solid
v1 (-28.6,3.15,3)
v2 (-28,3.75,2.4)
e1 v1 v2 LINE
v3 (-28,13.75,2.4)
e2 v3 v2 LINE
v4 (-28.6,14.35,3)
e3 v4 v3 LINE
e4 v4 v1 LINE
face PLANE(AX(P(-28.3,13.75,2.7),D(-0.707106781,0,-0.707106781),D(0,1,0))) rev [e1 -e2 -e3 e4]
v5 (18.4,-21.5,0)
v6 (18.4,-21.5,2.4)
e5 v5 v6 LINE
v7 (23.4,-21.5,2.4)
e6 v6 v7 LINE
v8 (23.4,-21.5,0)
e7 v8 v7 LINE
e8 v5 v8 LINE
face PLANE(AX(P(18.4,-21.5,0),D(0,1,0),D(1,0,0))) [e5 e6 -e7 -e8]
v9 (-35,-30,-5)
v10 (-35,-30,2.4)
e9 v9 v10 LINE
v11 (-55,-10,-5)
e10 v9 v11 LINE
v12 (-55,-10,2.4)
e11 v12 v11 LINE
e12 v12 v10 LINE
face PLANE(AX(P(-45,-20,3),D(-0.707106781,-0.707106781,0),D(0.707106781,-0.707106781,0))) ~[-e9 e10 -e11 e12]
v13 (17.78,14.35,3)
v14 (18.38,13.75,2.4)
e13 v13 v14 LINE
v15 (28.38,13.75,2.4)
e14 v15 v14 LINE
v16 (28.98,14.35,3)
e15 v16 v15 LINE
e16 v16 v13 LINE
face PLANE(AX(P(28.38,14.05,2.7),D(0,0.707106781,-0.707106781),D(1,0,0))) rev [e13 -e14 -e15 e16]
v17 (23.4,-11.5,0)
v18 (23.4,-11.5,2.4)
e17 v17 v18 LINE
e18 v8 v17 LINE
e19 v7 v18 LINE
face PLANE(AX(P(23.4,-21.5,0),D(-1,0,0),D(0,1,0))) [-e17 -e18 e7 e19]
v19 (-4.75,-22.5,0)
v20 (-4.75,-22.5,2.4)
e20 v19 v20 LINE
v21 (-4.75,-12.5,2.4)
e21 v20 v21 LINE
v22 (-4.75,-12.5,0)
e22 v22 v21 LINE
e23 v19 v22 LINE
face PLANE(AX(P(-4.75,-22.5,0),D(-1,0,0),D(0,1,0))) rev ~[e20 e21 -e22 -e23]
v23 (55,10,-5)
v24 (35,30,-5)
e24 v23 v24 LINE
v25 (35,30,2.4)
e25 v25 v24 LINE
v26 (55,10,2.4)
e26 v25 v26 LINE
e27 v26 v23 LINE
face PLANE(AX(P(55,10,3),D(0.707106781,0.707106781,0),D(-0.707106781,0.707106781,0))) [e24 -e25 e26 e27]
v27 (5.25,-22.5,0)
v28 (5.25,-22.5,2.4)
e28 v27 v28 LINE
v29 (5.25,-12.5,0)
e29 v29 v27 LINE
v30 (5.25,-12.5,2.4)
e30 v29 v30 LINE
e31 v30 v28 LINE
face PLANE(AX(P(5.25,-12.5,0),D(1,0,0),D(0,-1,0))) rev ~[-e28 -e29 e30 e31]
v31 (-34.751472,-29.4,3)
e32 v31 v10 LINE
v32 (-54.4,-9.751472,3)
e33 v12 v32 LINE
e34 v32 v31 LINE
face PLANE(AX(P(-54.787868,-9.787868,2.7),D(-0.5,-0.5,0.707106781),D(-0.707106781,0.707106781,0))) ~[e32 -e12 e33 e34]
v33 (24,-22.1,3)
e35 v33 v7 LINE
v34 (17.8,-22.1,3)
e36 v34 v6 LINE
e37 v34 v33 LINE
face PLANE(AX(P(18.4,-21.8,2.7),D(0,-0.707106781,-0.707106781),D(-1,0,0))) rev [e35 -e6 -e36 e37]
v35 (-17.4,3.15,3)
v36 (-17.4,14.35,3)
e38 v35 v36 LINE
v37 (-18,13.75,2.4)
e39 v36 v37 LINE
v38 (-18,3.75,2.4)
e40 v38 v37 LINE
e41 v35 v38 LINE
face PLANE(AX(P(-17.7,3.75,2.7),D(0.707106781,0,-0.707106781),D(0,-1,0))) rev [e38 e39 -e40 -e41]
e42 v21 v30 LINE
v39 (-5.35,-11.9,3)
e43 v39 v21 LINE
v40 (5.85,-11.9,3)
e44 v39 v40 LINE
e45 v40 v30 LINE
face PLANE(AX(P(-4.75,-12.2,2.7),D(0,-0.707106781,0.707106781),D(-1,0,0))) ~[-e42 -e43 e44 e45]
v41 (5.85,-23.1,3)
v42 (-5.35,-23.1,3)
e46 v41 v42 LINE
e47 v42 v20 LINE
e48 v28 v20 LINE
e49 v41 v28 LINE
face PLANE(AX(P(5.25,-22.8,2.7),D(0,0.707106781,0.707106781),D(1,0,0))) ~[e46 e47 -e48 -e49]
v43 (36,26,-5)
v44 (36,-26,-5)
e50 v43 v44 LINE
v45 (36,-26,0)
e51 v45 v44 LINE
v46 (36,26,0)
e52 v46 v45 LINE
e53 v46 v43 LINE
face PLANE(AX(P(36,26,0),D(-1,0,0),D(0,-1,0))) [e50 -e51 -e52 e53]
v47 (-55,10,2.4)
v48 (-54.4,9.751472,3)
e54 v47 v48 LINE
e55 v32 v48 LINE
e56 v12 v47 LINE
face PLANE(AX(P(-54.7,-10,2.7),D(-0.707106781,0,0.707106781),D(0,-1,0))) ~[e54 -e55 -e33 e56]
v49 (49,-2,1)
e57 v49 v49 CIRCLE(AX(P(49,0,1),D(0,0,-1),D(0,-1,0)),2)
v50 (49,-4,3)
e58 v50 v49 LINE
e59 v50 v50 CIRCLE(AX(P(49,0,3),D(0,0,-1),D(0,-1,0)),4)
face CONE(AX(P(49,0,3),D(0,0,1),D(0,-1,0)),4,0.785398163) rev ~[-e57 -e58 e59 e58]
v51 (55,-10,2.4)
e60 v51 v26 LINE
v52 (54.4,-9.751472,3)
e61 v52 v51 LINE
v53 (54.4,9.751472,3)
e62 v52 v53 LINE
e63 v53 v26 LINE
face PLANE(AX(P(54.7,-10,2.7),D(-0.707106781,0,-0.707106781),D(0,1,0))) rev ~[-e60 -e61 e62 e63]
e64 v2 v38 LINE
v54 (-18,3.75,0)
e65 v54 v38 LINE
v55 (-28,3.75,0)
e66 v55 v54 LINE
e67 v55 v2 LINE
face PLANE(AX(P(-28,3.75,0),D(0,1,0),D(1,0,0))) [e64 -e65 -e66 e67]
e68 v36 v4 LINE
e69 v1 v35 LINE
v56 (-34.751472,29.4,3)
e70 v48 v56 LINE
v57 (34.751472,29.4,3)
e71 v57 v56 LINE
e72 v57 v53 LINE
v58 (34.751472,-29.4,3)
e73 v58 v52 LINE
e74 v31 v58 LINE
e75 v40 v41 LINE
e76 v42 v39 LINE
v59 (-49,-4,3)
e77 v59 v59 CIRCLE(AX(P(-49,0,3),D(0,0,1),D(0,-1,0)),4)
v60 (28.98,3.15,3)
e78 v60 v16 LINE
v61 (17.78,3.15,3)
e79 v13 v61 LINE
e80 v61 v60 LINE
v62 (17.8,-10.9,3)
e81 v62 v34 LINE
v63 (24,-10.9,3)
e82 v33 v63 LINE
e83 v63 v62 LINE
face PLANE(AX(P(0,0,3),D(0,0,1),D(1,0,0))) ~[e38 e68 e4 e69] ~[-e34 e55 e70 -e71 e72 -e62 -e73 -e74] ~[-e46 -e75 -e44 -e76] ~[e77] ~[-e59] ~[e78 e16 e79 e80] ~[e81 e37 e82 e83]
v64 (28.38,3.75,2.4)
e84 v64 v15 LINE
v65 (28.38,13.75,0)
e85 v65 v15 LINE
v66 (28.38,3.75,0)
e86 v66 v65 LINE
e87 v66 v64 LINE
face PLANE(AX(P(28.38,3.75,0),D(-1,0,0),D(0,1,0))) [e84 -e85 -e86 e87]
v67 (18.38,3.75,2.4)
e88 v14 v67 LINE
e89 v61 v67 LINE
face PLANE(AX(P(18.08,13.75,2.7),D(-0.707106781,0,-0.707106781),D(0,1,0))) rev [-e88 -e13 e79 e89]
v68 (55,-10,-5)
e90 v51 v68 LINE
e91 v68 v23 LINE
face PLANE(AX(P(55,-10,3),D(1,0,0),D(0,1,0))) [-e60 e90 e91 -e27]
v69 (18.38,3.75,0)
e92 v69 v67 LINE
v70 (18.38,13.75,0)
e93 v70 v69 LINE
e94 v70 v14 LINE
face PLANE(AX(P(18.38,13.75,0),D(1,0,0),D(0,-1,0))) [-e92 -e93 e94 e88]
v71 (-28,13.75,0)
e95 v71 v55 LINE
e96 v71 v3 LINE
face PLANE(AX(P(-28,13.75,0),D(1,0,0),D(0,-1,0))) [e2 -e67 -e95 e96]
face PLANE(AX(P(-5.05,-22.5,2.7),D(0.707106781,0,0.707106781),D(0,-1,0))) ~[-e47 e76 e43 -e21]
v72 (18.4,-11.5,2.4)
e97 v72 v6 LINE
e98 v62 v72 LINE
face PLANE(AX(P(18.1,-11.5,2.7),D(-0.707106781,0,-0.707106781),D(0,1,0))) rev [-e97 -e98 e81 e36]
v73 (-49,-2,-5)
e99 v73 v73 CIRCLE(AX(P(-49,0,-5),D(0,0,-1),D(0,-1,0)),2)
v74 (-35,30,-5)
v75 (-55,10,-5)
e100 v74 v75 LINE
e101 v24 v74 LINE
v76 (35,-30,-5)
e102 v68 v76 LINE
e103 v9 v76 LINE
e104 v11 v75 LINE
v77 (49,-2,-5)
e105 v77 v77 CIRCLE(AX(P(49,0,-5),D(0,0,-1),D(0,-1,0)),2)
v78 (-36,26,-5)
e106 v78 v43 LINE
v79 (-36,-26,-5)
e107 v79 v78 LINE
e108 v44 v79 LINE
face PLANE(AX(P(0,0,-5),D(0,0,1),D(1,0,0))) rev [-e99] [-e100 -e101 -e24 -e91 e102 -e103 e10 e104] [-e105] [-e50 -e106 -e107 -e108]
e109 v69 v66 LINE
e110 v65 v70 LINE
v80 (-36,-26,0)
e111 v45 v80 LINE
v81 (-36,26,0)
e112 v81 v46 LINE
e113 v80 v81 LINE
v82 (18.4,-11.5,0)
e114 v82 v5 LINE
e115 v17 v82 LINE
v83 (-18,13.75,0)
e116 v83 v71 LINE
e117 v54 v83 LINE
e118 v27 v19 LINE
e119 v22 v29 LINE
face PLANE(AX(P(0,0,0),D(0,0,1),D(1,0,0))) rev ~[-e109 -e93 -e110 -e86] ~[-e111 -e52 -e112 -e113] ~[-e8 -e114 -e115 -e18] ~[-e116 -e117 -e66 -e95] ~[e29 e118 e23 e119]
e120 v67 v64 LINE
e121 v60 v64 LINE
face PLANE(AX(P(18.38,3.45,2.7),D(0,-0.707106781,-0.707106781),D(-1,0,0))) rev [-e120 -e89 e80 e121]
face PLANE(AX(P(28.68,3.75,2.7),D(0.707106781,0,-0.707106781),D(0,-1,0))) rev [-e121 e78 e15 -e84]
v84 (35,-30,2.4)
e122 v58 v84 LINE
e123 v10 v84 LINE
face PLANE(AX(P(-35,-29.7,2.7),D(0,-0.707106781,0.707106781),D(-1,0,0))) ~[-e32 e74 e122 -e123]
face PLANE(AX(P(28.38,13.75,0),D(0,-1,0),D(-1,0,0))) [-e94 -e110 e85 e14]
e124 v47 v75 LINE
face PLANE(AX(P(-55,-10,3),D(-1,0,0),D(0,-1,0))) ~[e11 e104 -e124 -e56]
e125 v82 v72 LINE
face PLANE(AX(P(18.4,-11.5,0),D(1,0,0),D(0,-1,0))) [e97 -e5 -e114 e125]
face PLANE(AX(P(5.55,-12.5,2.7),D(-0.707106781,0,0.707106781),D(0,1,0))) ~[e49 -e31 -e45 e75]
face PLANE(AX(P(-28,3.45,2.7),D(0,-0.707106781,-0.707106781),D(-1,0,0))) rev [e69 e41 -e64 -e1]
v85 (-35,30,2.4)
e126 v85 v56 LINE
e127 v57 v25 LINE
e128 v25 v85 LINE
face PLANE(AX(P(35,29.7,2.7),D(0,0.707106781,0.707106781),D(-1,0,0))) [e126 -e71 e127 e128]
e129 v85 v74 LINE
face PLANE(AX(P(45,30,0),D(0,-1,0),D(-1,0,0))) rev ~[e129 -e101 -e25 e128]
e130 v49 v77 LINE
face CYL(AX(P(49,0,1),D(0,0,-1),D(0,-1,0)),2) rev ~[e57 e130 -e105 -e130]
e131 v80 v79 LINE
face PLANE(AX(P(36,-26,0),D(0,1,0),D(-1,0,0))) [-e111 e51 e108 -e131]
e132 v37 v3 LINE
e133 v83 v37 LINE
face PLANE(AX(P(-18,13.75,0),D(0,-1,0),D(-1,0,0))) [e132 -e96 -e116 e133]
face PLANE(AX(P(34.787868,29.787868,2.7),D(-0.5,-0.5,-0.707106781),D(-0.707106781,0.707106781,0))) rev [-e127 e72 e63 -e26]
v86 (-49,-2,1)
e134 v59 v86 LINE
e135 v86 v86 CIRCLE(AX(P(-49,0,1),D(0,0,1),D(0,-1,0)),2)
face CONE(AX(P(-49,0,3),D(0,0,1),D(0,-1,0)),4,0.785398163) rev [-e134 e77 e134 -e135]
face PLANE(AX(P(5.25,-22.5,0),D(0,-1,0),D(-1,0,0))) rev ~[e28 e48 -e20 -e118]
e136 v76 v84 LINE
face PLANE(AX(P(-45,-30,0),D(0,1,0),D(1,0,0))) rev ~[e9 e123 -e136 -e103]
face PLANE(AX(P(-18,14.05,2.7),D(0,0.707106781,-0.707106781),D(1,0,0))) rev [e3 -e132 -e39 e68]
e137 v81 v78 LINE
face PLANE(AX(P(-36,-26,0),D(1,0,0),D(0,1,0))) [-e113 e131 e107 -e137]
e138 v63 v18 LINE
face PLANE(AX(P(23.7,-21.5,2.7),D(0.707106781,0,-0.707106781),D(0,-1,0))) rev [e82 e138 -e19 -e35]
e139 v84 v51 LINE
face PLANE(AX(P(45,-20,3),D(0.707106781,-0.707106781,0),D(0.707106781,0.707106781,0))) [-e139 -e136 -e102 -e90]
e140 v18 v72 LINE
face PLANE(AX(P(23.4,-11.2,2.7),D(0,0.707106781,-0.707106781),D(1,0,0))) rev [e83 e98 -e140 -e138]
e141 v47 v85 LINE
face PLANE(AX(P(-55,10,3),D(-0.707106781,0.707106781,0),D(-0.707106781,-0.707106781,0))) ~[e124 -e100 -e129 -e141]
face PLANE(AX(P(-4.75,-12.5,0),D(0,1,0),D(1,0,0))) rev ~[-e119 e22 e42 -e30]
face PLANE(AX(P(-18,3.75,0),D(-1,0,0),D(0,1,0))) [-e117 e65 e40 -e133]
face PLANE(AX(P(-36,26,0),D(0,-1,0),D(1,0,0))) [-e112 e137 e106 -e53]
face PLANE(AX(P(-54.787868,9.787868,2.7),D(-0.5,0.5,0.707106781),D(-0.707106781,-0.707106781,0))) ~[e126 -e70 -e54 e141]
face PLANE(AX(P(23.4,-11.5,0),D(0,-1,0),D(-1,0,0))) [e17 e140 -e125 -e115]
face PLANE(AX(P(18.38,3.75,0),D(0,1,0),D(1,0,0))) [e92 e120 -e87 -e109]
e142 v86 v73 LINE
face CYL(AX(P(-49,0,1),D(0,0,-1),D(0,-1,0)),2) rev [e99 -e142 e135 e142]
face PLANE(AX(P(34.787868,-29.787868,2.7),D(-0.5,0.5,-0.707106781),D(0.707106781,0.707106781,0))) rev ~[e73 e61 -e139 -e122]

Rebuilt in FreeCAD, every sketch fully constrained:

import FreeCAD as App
import Part
import Sketcher

V = App.Vector
Q = App.Units.Quantity


def edges_at(feature, points):
    """Names of the edges that pass closest to the given points."""
    edges = feature.Shape.Edges
    near = lambda p: min(range(len(edges)), key=lambda i: edges[i].distToShape(Part.Vertex(*p))[0])
    return sorted({f"Edge{near(p) + 1}" for p in points})


def add_polygon(sketch, points):
    """Adds a closed chain of lines whose ends are joined by coincident constraints."""
    first, n = sketch.GeometryCount, len(points)
    for a, b in zip(points, points[1:] + points[:1]):
        sketch.addGeometry(Part.LineSegment(App.Vector(*a, 0), App.Vector(*b, 0)), False)
    for i in range(n):
        sketch.addConstraint(Sketcher.Constraint("Coincident", first + i, 2, first + (i + 1) % n, 1))

doc = App.newDocument("Part")
body = doc.addObject("PartDesign::Body", "Body")

# Sketch on XY plane
sketch1 = body.newObject("Sketcher::SketchObject", "Sketch")
sketch1.AttachmentSupport = (doc.getObject("XY_Plane"), [""])
sketch1.MapMode = "FlatFace"
add_polygon(sketch1, [(-45, 30), (-45, -30), (45, -30), (45, 30)])  # lines 0-3
add_polygon(sketch1, [(-4.75, -22.5), (-4.75, -12.5), (5.25, -12.5), (5.25, -22.5)])  # lines 4-7
add_polygon(sketch1, [(23.4, -21.5), (18.4, -21.5), (18.4, -11.5), (23.4, -11.5)])  # lines 8-11
add_polygon(sketch1, [(-18, 3.75), (-28, 3.75), (-28, 13.75), (-18, 13.75)])  # lines 12-15
add_polygon(sketch1, [(28.38, 3.75), (18.38, 3.75), (18.38, 13.75), (28.38, 13.75)])  # lines 16-19
sketch1.addConstraint(Sketcher.Constraint("Vertical", 0))
sketch1.addConstraint(Sketcher.Constraint("Horizontal", 1))
sketch1.addConstraint(Sketcher.Constraint("Vertical", 2))
sketch1.addConstraint(Sketcher.Constraint("Horizontal", 3))
sketch1.addConstraint(Sketcher.Constraint("Vertical", 4))
sketch1.addConstraint(Sketcher.Constraint("Horizontal", 5))
sketch1.addConstraint(Sketcher.Constraint("Vertical", 6))
sketch1.addConstraint(Sketcher.Constraint("Horizontal", 7))
sketch1.addConstraint(Sketcher.Constraint("Horizontal", 8))
sketch1.addConstraint(Sketcher.Constraint("Vertical", 9))
sketch1.addConstraint(Sketcher.Constraint("Horizontal", 10))
sketch1.addConstraint(Sketcher.Constraint("Vertical", 11))
sketch1.addConstraint(Sketcher.Constraint("Horizontal", 12))
sketch1.addConstraint(Sketcher.Constraint("Vertical", 13))
sketch1.addConstraint(Sketcher.Constraint("Horizontal", 14))
sketch1.addConstraint(Sketcher.Constraint("Vertical", 15))
sketch1.addConstraint(Sketcher.Constraint("Horizontal", 16))
sketch1.addConstraint(Sketcher.Constraint("Vertical", 17))
sketch1.addConstraint(Sketcher.Constraint("Horizontal", 18))
sketch1.addConstraint(Sketcher.Constraint("Vertical", 19))
sketch1.addConstraint(Sketcher.Constraint("Symmetric", 0, 2, 2, 2, -1, 1))
sketch1.addConstraint(Sketcher.Constraint("Horizontal", 15, 2, 16, 2))
sketch1.addConstraint(Sketcher.Constraint("Horizontal", 14, 2, 17, 2))
sketch1.addConstraint(Sketcher.Constraint("Equal", 7, 12))
sketch1.addConstraint(Sketcher.Constraint("Equal", 14, 16))
sketch1.addConstraint(Sketcher.Constraint("Equal", 18, 4))
sketch1.addConstraint(Sketcher.Constraint("Equal", 6, 9))
sketch1.addConstraint(Sketcher.Constraint("Equal", 11, 13))
sketch1.addConstraint(Sketcher.Constraint("DistanceX", 5, 1, 5, 2, Q("10 mm")))
sketch1.addConstraint(Sketcher.Constraint("DistanceX", 8, 2, 8, 1, Q("5 mm")))
sketch1.addConstraint(Sketcher.Constraint("DistanceX", 1, 1, 1, 2, Q("90 mm")))
sketch1.addConstraint(Sketcher.Constraint("DistanceY", 0, 2, 0, 1, Q("60 mm")))
sketch1.addConstraint(Sketcher.Constraint("DistanceX", 12, 2, -1, 1, Q("28 mm")))
sketch1.addConstraint(Sketcher.Constraint("DistanceY", 6, 2, 8, 2, Q("1 mm")))
sketch1.addConstraint(Sketcher.Constraint("DistanceY", 4, 2, -1, 1, Q("12.5 mm")))
sketch1.addConstraint(Sketcher.Constraint("DistanceX", -1, 1, 8, 2, Q("18.4 mm")))
sketch1.addConstraint(Sketcher.Constraint("DistanceX", 4, 2, -1, 1, Q("4.75 mm")))
sketch1.addConstraint(Sketcher.Constraint("DistanceY", -1, 1, 12, 2, Q("3.75 mm")))
sketch1.addConstraint(Sketcher.Constraint("DistanceX", -1, 1, 16, 2, Q("18.38 mm")))
pad1 = body.newObject("PartDesign::Pad", "Pad")
pad1.Profile = sketch1
pad1.Length = 3

# Sketch on XY plane
sketch2 = body.newObject("Sketcher::SketchObject", "Sketch001")
sketch2.AttachmentSupport = (doc.getObject("XY_Plane"), [""])
sketch2.MapMode = "FlatFace"
add_polygon(sketch2, [(45, 30), (45, -30), (-45, -30), (-45, 30)])  # lines 0-3
add_polygon(sketch2, [(36, 26), (-36, 26), (-36, -26), (36, -26)])  # lines 4-7
sketch2.addConstraint(Sketcher.Constraint("Vertical", 0))
sketch2.addConstraint(Sketcher.Constraint("Horizontal", 1))
sketch2.addConstraint(Sketcher.Constraint("Vertical", 2))
sketch2.addConstraint(Sketcher.Constraint("Horizontal", 3))
sketch2.addConstraint(Sketcher.Constraint("Horizontal", 4))
sketch2.addConstraint(Sketcher.Constraint("Vertical", 5))
sketch2.addConstraint(Sketcher.Constraint("Horizontal", 6))
sketch2.addConstraint(Sketcher.Constraint("Vertical", 7))
sketch2.addConstraint(Sketcher.Constraint("Symmetric", 0, 2, 2, 2, -1, 1))
sketch2.addConstraint(Sketcher.Constraint("Symmetric", 4, 2, 6, 2, -1, 1))
sketch2.addConstraint(Sketcher.Constraint("DistanceX", 1, 2, 1, 1, Q("90 mm")))
sketch2.addConstraint(Sketcher.Constraint("DistanceX", 4, 2, 4, 1, Q("72 mm")))
sketch2.addConstraint(Sketcher.Constraint("DistanceY", 0, 2, 0, 1, Q("60 mm")))
sketch2.addConstraint(Sketcher.Constraint("DistanceY", 5, 2, 5, 1, Q("52 mm")))
pad2 = body.newObject("PartDesign::Pad", "Pad001")
pad2.Profile = sketch2
pad2.Length = 5
pad2.Reversed = True
doc.recompute()

chamfer = body.newObject("PartDesign::Chamfer", "Chamfer")
chamfer.Base = (pad2, edges_at(pad2, [
    (-45, -30, -1),
    (45, -30, -1),
    (45, 30, -1),
    (-45, 30, -1),
]))
chamfer.Size = 10

# Sketch on XY plane
sketch3 = body.newObject("Sketcher::SketchObject", "Sketch002")
sketch3.AttachmentSupport = (doc.getObject("XY_Plane"), [""])
sketch3.MapMode = "FlatFace"
sketch3.AttachmentOffset = App.Placement(V(0, 0, 3), App.Rotation())
add_polygon(sketch3, [(45, 20), (45, -20), (55, -10), (55, 10)])  # lines 0-3
sketch3.addConstraint(Sketcher.Constraint("Vertical", 0))
sketch3.addConstraint(Sketcher.Constraint("Vertical", 2))
sketch3.addConstraint(Sketcher.Constraint("Perpendicular", 1, 3))
sketch3.addConstraint(Sketcher.Constraint("Equal", 1, 3))
sketch3.addConstraint(Sketcher.Constraint("DistanceY", 1, 2, -1, 1, Q("10 mm")))
sketch3.addConstraint(Sketcher.Constraint("DistanceY", -1, 1, 2, 2, Q("10 mm")))
sketch3.addConstraint(Sketcher.Constraint("DistanceX", 0, 2, 1, 2, Q("10 mm")))
sketch3.addConstraint(Sketcher.Constraint("DistanceX", -1, 1, 0, 2, Q("45 mm")))
pad3 = body.newObject("PartDesign::Pad", "Pad002")
pad3.Profile = sketch3
pad3.Length = 8
pad3.Reversed = True

# Sketch on XY plane
sketch4 = body.newObject("Sketcher::SketchObject", "Sketch003")
sketch4.AttachmentSupport = (doc.getObject("XY_Plane"), [""])
sketch4.MapMode = "FlatFace"
sketch4.AttachmentOffset = App.Placement(V(0, 0, 3), App.Rotation())
sketch4.addGeometry(Part.Circle(V(49, 0, 0), V(0, 0, 1), 2), False)
sketch4.addConstraint(Sketcher.Constraint("PointOnObject", 0, 3, -1))
sketch4.addConstraint(Sketcher.Constraint("Diameter", 0, Q("4 mm")))
sketch4.addConstraint(Sketcher.Constraint("DistanceX", -1, 1, 0, 3, Q("49 mm")))
doc.recompute()
hole = body.newObject("PartDesign::Hole", "Hole")
hole.Profile = sketch4
hole.ThreadType = "None"
hole.Diameter = 4
hole.DepthType = "ThroughAll"
hole.HoleCutType = "Countersink"
hole.HoleCutDiameter = 8
hole.HoleCutCountersinkAngle = 90
doc.recompute()

mirrored = body.newObject("PartDesign::Mirrored", "Mirrored")
mirrored.Originals = [pad3, hole]
mirrored.MirrorPlane = (doc.getObject("YZ_Plane"), [""])
body.Tip = mirrored
doc.recompute()

chamfer2 = body.newObject("PartDesign::Chamfer", "Chamfer001")
chamfer2.Base = (mirrored, edges_at(mirrored, [
    (45, -20, 3),
    (55, 0, 3),
    (45, 20, 3),
    (0, 30, 3),
    (-45, 20, 3),
    (-55, 0, 3),
    (-45, -20, 3),
    (0, -30, 3),
    (-28, 8.75, 3),
    (-23, 3.75, 3),
    (-18, 8.75, 3),
    (-23, 13.75, 3),
    (23.38, 13.75, 3),
    (28.38, 8.75, 3),
    (23.38, 3.75, 3),
    (18.38, 8.75, 3),
    (20.9, -11.5, 3),
    (18.4, -16.5, 3),
    (20.9, -21.5, 3),
    (23.4, -16.5, 3),
    (5.25, -17.5, 3),
    (0.25, -22.5, 3),
    (-4.75, -17.5, 3),
    (0.25, -12.5, 3),
]))
chamfer2.Size = 0.6

doc.recompute()
